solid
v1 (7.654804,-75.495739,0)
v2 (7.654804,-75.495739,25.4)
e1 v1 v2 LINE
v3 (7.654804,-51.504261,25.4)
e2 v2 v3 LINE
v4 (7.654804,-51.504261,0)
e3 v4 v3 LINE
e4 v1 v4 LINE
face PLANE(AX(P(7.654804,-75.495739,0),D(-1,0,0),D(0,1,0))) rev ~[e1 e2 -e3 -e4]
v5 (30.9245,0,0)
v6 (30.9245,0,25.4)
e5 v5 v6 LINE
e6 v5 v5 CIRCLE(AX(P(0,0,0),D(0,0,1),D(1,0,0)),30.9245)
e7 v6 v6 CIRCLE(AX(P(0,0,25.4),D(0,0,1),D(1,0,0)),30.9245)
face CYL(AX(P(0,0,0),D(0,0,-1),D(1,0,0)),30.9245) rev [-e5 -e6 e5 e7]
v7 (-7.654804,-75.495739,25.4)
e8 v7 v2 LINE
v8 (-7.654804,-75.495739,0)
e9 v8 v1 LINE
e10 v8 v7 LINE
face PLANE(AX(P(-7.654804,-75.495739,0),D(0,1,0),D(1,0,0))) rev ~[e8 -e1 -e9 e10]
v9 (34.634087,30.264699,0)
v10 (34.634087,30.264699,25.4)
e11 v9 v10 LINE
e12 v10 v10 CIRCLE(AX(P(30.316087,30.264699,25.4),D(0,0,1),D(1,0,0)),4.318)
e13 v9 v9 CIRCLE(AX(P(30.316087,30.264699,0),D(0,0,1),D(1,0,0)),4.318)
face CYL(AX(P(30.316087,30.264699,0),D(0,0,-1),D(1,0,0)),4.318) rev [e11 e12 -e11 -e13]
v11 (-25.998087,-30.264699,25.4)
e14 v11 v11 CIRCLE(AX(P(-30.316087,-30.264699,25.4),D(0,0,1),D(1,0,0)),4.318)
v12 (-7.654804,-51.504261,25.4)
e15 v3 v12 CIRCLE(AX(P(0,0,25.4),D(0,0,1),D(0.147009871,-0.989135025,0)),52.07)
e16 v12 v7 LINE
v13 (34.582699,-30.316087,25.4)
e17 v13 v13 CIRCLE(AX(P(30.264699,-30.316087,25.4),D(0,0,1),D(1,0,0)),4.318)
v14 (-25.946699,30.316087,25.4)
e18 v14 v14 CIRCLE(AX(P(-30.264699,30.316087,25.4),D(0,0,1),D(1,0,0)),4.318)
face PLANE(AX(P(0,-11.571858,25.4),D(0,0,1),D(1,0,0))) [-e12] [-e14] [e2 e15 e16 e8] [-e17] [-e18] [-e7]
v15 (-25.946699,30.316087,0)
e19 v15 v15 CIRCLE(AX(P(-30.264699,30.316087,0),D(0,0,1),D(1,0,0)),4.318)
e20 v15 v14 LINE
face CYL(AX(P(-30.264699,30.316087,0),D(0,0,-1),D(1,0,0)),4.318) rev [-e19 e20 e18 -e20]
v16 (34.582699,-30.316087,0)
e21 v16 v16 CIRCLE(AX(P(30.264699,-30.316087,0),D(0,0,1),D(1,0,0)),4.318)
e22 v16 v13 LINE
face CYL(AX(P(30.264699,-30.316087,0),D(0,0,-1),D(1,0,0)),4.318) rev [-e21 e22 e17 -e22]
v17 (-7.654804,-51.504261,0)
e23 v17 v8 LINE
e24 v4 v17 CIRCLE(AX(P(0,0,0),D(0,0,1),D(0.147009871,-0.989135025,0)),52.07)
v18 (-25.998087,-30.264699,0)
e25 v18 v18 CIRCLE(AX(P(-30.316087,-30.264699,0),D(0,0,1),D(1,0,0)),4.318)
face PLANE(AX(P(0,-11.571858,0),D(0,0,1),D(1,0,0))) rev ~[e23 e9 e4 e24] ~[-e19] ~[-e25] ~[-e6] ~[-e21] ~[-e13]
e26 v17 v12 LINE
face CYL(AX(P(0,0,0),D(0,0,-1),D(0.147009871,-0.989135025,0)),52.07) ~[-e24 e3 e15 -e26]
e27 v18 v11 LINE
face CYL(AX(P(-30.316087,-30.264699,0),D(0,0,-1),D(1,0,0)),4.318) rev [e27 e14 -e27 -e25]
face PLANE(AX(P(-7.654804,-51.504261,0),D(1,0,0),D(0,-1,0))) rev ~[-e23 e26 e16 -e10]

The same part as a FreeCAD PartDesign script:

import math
import FreeCAD as App
import Part
import Sketcher
from FreeCAD import Vector
Q = App.Units.Quantity

doc = App.newDocument("Part")
body = doc.addObject("PartDesign::Body", "Body")

# Sketch on XY plane
sketch1 = body.newObject("Sketcher::SketchObject", "Sketch")
sketch1.AttachmentSupport = (doc.getObject("XY_Plane"), [""])
sketch1.MapMode = "FlatFace"
sketch1.addGeometry(Part.LineSegment(Vector(7.7, -75.5, 0), Vector(7.7, -51.5, 0)), False)
sketch1.addGeometry(Part.ArcOfCircle(Part.Circle(Vector(0, 0, 0), Vector(0, 0, 1), 52.1), math.radians(-82), math.radians(262)), False)
sketch1.addGeometry(Part.LineSegment(Vector(-7.7, -51.5, 0), Vector(-7.7, -75.5, 0)), False)
sketch1.addGeometry(Part.LineSegment(Vector(-7.7, -75.5, 0), Vector(7.7, -75.5, 0)), False)
sketch1.addGeometry(Part.Circle(Vector(-30.3, -30.3, 0), Vector(0, 0, 1), 4.3), False)
sketch1.addGeometry(Part.Circle(Vector(30.3, -30.3, 0), Vector(0, 0, 1), 4.3), False)
sketch1.addGeometry(Part.Circle(Vector(-30.3, 30.3, 0), Vector(0, 0, 1), 4.3), False)
sketch1.addGeometry(Part.Circle(Vector(0, 0, 0), Vector(0, 0, 1), 30.9), False)
sketch1.addGeometry(Part.Circle(Vector(30.3, 30.3, 0), Vector(0, 0, 1), 4.3), False)
sketch1.addConstraint(Sketcher.Constraint("Coincident", 0, 2, 1, 1))
sketch1.addConstraint(Sketcher.Constraint("Coincident", 1, 2, 2, 1))
sketch1.addConstraint(Sketcher.Constraint("Coincident", 2, 2, 3, 1))
sketch1.addConstraint(Sketcher.Constraint("Coincident", 3, 2, 0, 1))
sketch1.addConstraint(Sketcher.Constraint("Vertical", 0))
sketch1.addConstraint(Sketcher.Constraint("Vertical", 2))
sketch1.addConstraint(Sketcher.Constraint("Horizontal", 3))
sketch1.addConstraint(Sketcher.Constraint("Coincident", 1, 3, -1, 1))
sketch1.addConstraint(Sketcher.Constraint("Coincident", 7, 3, -1, 1))
sketch1.addConstraint(Sketcher.Constraint("Equal", 4, 5))
sketch1.addConstraint(Sketcher.Constraint("Equal", 5, 6))
sketch1.addConstraint(Sketcher.Constraint("Equal", 6, 8))
sketch1.addConstraint(Sketcher.Constraint("Symmetric", 5, 3, 6, 3, -1, 1))
sketch1.addConstraint(Sketcher.Constraint("Symmetric", 4, 3, 8, 3, -1, 1))
sketch1.addConstraint(Sketcher.Constraint("Horizontal", 0, 2, 1, 2))
sketch1.addConstraint(Sketcher.Constraint("Diameter", 4, Q("0.34 in")))
sketch1.addConstraint(Sketcher.Constraint("Radius", 1, Q("2.05 in")))
sketch1.addConstraint(Sketcher.Constraint("Diameter", 7, Q("2.435 in")))
sketch1.addConstraint(Sketcher.Constraint("DistanceX", 3, 1, 3, 2, 15.309608))
sketch1.addConstraint(Sketcher.Constraint("DistanceY", 0, 1, 0, 2, 23.991478))
sketch1.addConstraint(Sketcher.Constraint("DistanceY", 4, 3, -1, 1, 30.264699))
sketch1.addConstraint(Sketcher.Constraint("DistanceX", -1, 1, 5, 3, 30.264699))
sketch1.addConstraint(Sketcher.Constraint("DistanceX", 4, 3, 0, 2, 37.970891))
sketch1.addConstraint(Sketcher.Constraint("DistanceY", 5, 3, -1, 1, 30.316087))
pad1 = body.newObject("PartDesign::Pad", "Pad")
pad1.Profile = sketch1
pad1.Length = Q("1 in")

doc.recompute()
